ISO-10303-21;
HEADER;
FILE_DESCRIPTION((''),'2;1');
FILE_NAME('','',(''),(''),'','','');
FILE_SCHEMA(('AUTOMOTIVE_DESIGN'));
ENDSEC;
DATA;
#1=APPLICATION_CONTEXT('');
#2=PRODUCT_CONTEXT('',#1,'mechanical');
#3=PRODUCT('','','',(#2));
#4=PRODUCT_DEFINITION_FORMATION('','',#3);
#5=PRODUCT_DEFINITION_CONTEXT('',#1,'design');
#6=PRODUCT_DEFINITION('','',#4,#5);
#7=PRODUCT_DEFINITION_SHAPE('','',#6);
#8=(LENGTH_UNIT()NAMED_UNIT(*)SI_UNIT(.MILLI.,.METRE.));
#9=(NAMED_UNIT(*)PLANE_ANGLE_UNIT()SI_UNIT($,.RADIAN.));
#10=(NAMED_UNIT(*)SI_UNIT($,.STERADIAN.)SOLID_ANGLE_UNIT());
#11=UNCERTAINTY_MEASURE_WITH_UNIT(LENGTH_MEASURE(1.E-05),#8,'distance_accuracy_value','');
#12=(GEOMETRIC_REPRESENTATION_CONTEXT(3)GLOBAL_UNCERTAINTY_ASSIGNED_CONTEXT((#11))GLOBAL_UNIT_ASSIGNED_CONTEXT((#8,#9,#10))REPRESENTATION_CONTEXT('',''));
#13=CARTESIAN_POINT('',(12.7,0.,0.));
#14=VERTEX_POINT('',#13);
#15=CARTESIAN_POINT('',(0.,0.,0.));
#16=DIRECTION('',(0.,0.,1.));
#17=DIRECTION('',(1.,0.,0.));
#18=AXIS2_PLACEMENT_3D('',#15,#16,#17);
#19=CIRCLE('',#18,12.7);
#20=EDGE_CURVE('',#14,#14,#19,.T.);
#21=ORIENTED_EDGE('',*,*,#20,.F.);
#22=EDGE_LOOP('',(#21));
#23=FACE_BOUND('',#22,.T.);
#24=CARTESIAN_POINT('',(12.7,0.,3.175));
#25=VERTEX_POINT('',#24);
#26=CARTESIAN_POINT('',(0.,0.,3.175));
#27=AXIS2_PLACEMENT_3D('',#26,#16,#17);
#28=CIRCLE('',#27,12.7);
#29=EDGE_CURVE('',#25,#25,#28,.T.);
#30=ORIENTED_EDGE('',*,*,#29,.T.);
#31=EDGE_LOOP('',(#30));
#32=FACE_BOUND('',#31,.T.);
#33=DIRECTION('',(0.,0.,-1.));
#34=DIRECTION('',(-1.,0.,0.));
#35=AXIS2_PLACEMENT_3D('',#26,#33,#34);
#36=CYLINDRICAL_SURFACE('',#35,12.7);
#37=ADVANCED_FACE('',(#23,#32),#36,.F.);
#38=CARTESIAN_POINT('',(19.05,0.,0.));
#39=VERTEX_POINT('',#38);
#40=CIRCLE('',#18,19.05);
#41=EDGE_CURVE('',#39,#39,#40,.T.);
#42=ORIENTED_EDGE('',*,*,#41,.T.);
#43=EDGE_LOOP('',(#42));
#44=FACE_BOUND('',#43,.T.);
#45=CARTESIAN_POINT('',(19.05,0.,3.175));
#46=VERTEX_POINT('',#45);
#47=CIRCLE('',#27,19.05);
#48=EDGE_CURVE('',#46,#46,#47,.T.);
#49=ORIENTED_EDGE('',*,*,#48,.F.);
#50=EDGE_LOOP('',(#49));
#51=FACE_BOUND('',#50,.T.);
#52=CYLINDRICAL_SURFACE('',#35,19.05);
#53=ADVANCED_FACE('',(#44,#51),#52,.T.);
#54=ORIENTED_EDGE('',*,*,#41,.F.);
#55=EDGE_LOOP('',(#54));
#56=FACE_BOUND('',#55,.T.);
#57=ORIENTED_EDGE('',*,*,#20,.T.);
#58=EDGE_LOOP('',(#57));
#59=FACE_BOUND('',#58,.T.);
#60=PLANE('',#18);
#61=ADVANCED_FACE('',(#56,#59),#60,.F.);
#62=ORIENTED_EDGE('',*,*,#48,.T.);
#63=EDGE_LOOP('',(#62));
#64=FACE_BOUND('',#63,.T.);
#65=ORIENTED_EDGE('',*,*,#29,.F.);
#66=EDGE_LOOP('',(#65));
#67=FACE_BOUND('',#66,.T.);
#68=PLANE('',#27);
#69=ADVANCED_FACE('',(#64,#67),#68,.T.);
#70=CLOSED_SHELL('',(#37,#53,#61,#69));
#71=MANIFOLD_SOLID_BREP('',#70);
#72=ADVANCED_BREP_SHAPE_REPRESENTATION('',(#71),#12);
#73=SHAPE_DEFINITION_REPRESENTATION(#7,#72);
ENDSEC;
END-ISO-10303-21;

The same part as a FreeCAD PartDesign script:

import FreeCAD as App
import Part
import Sketcher

V = App.Vector
Q = App.Units.Quantity

doc = App.newDocument("Part")
body = doc.addObject("PartDesign::Body", "Body")

sketch1 = doc.addObject("Sketcher::SketchObject", "Sketch")
body.addObject(sketch1)
sketch1.AttachmentSupport = (doc.XY_Plane, [""])
sketch1.MapMode = "FlatFace"
sketch1.addGeometry([
    Part.Circle(V(0, 0, 0), V(0, 0, 1), 19),
    Part.Circle(V(0, 0, 0), V(0, 0, 1), 13),
], False)
sketch1.addConstraint([
    Sketcher.Constraint("Coincident", 0, 3, -1, 1),
    Sketcher.Constraint("Coincident", 1, 3, -1, 1),
    Sketcher.Constraint("Diameter", 1, Q("1 in")),
    Sketcher.Constraint("Diameter", 0, Q("1.5 in")),
])
pad1 = doc.addObject("PartDesign::Pad", "Pad")
body.addObject(pad1)
pad1.Profile = sketch1
pad1.Length = Q("0.125 in")

doc.recompute()
